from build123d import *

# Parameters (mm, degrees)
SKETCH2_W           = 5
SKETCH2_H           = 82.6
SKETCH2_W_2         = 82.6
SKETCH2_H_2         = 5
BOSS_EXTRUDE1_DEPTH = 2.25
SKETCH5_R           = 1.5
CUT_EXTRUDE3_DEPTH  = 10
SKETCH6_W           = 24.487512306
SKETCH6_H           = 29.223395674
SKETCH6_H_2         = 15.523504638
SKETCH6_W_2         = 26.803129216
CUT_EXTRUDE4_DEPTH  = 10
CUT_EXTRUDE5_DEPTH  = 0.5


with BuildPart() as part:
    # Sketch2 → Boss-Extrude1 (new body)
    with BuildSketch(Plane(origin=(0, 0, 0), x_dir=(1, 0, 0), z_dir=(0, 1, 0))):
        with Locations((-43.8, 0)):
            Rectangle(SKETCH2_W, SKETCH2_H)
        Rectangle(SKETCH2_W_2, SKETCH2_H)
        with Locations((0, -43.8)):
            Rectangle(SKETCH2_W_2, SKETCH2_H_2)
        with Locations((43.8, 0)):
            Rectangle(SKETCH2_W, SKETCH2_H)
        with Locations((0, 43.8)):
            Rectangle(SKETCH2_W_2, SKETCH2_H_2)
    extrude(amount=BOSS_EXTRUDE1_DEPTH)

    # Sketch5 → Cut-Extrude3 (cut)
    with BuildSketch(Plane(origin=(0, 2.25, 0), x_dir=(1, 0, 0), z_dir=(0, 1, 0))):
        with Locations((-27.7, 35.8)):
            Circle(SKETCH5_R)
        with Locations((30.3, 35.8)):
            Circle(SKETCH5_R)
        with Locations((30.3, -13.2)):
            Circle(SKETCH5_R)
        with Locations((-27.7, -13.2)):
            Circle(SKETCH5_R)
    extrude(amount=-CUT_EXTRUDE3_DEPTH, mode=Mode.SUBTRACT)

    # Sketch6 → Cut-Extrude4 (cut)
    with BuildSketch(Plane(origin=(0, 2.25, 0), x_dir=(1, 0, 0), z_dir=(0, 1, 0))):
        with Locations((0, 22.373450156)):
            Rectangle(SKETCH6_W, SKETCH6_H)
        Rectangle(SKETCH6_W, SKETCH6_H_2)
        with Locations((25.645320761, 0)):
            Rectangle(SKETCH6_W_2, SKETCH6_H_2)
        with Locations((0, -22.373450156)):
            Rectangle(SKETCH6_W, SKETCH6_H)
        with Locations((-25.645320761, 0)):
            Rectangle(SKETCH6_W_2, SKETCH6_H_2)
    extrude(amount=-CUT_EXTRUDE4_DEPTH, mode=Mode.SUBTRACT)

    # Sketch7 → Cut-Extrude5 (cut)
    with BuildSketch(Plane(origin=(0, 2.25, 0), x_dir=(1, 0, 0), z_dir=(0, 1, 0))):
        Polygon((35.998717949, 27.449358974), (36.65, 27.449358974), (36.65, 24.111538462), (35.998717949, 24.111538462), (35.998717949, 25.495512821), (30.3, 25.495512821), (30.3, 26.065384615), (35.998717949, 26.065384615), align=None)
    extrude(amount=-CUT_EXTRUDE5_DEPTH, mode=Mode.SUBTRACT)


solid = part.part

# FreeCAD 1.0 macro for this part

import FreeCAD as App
import Part
import Sketcher

V = App.Vector
Q = App.Units.Quantity

doc = App.newDocument("Part")
body = doc.addObject("PartDesign::Body", "Body")

# Sketch on XZ plane
sketch1 = doc.addObject("Sketcher::SketchObject", "Sketch")
body.addObject(sketch1)
sketch1.AttachmentSupport = (doc.XZ_Plane, [""])
sketch1.MapMode = "FlatFace"
sketch1.addGeometry([
    Part.LineSegment(V(-46.3, -41.3, 0), V(-46.3, 41.3, 0)),  # 0
    Part.LineSegment(V(-46.3, 41.3, 0), V(-41.3, 41.3, 0)),  # 1
    Part.LineSegment(V(-41.3, 41.3, 0), V(-41.3, 46.3, 0)),  # 2
    Part.LineSegment(V(-41.3, 46.3, 0), V(41.3, 46.3, 0)),  # 3
    Part.LineSegment(V(41.3, 46.3, 0), V(41.3, 41.3, 0)),  # 4
    Part.LineSegment(V(41.3, 41.3, 0), V(46.3, 41.3, 0)),  # 5
    Part.LineSegment(V(46.3, 41.3, 0), V(46.3, -41.3, 0)),  # 6
    Part.LineSegment(V(46.3, -41.3, 0), V(41.3, -41.3, 0)),  # 7
    Part.LineSegment(V(41.3, -41.3, 0), V(41.3, -46.3, 0)),  # 8
    Part.LineSegment(V(41.3, -46.3, 0), V(-41.3, -46.3, 0)),  # 9
    Part.LineSegment(V(-41.3, -46.3, 0), V(-41.3, -41.3, 0)),  # 10
    Part.LineSegment(V(-41.3, -41.3, 0), V(-46.3, -41.3, 0)),  # 11
], False)
sketch1.addConstraint([
    Sketcher.Constraint("Coincident", 0, 2, 1, 1),
    Sketcher.Constraint("Coincident", 1, 2, 2, 1),
    Sketcher.Constraint("Coincident", 2, 2, 3, 1),
    Sketcher.Constraint("Coincident", 3, 2, 4, 1),
    Sketcher.Constraint("Coincident", 4, 2, 5, 1),
    Sketcher.Constraint("Coincident", 5, 2, 6, 1),
    Sketcher.Constraint("Coincident", 6, 2, 7, 1),
    Sketcher.Constraint("Coincident", 7, 2, 8, 1),
    Sketcher.Constraint("Coincident", 8, 2, 9, 1),
    Sketcher.Constraint("Coincident", 9, 2, 10, 1),
    Sketcher.Constraint("Coincident", 10, 2, 11, 1),
    Sketcher.Constraint("Coincident", 11, 2, 0, 1),
    Sketcher.Constraint("Vertical", 0),
    Sketcher.Constraint("Horizontal", 1),
    Sketcher.Constraint("Vertical", 2),
    Sketcher.Constraint("Horizontal", 3),
    Sketcher.Constraint("Vertical", 4),
    Sketcher.Constraint("Horizontal", 5),
    Sketcher.Constraint("Vertical", 6),
    Sketcher.Constraint("Horizontal", 7),
    Sketcher.Constraint("Vertical", 8),
    Sketcher.Constraint("Horizontal", 9),
    Sketcher.Constraint("Vertical", 10),
    Sketcher.Constraint("Horizontal", 11),
    Sketcher.Constraint("Symmetric", 0, 2, 6, 2, -1, 1),
    Sketcher.Constraint("Symmetric", 2, 2, 8, 2, -1, 1),
    Sketcher.Constraint("Symmetric", 4, 2, 10, 2, -1, 1),
    Sketcher.Constraint("Symmetric", 1, 2, 4, 2, -2),
    Sketcher.Constraint("Equal", 9, 0),
    Sketcher.Constraint("Equal", 11, 2),
    Sketcher.Constraint("DistanceX", 1, 1, 1, 2, Q("5 mm")),
    Sketcher.Constraint("DistanceX", 3, 1, 3, 2, Q("82.6 mm")),
])
pad1 = doc.addObject("PartDesign::Pad", "Pad")
body.addObject(pad1)
pad1.Profile = sketch1
pad1.Length = 2.25
pad1.Reversed = True

# Sketch on XZ plane
sketch2 = doc.addObject("Sketcher::SketchObject", "Sketch001")
body.addObject(sketch2)
sketch2.AttachmentSupport = (doc.XZ_Plane, [""])
sketch2.MapMode = "FlatFace"
sketch2.AttachmentOffset = App.Placement(V(0, 0, -2.25), App.Rotation())
sketch2.addGeometry([
    Part.Circle(V(-27.7, -35.8, 0), V(0, 0, 1), 1.5),
    Part.Circle(V(30.3, -35.8, 0), V(0, 0, 1), 1.5),
    Part.Circle(V(30.3, 13.2, 0), V(0, 0, 1), 1.5),
    Part.Circle(V(-27.7, 13.2, 0), V(0, 0, 1), 1.5),
], False)
sketch2.addConstraint([
    Sketcher.Constraint("Equal", 0, 1),
    Sketcher.Constraint("Equal", 1, 2),
    Sketcher.Constraint("Equal", 2, 3),
    Sketcher.Constraint("Horizontal", 0, 3, 1, 3),
    Sketcher.Constraint("Horizontal", 2, 3, 3, 3),
    Sketcher.Constraint("Vertical", 1, 3, 2, 3),
    Sketcher.Constraint("Vertical", 0, 3, 3, 3),
    Sketcher.Constraint("Diameter", 0, Q("3 mm")),
    Sketcher.Constraint("DistanceX", 0, 3, 1, 3, Q("58 mm")),
    Sketcher.Constraint("DistanceY", 1, 3, 2, 3, Q("49 mm")),
    Sketcher.Constraint("DistanceX", 0, 3, -1, 1, Q("27.7 mm")),
    Sketcher.Constraint("DistanceY", 0, 3, -1, 1, Q("35.8 mm")),
])
pocket1 = doc.addObject("PartDesign::Pocket", "Pocket")
body.addObject(pocket1)
pocket1.Profile = sketch2
pocket1.Length = 10
pocket1.Reversed = True

# Sketch on XZ plane
sketch3 = doc.addObject("Sketcher::SketchObject", "Sketch002")
body.addObject(sketch3)
sketch3.AttachmentSupport = (doc.XZ_Plane, [""])
sketch3.MapMode = "FlatFace"
sketch3.AttachmentOffset = App.Placement(V(0, 0, -2.25), App.Rotation())
sketch3.addGeometry([
    Part.LineSegment(V(-12.243756, -36.985148, 0), V(-12.243756, -7.761752, 0)),  # 0
    Part.LineSegment(V(-12.243756, -7.761752, 0), V(-39.046885, -7.761752, 0)),  # 1
    Part.LineSegment(V(-39.046885, -7.761752, 0), V(-39.046885, 7.761752, 0)),  # 2
    Part.LineSegment(V(-39.046885, 7.761752, 0), V(-12.243756, 7.761752, 0)),  # 3
    Part.LineSegment(V(-12.243756, 7.761752, 0), V(-12.243756, 36.985148, 0)),  # 4
    Part.LineSegment(V(-12.243756, 36.985148, 0), V(12.243756, 36.985148, 0)),  # 5
    Part.LineSegment(V(12.243756, 36.985148, 0), V(12.243756, 7.761752, 0)),  # 6
    Part.LineSegment(V(12.243756, 7.761752, 0), V(39.046885, 7.761752, 0)),  # 7
    Part.LineSegment(V(39.046885, 7.761752, 0), V(39.046885, -7.761752, 0)),  # 8
    Part.LineSegment(V(39.046885, -7.761752, 0), V(12.243756, -7.761752, 0)),  # 9
    Part.LineSegment(V(12.243756, -7.761752, 0), V(12.243756, -36.985148, 0)),  # 10
    Part.LineSegment(V(12.243756, -36.985148, 0), V(-12.243756, -36.985148, 0)),  # 11
], False)
sketch3.addConstraint([
    Sketcher.Constraint("Coincident", 0, 2, 1, 1),
    Sketcher.Constraint("Coincident", 1, 2, 2, 1),
    Sketcher.Constraint("Coincident", 2, 2, 3, 1),
    Sketcher.Constraint("Coincident", 3, 2, 4, 1),
    Sketcher.Constraint("Coincident", 4, 2, 5, 1),
    Sketcher.Constraint("Coincident", 5, 2, 6, 1),
    Sketcher.Constraint("Coincident", 6, 2, 7, 1),
    Sketcher.Constraint("Coincident", 7, 2, 8, 1),
    Sketcher.Constraint("Coincident", 8, 2, 9, 1),
    Sketcher.Constraint("Coincident", 9, 2, 10, 1),
    Sketcher.Constraint("Coincident", 10, 2, 11, 1),
    Sketcher.Constraint("Coincident", 11, 2, 0, 1),
    Sketcher.Constraint("Vertical", 0),
    Sketcher.Constraint("Horizontal", 1),
    Sketcher.Constraint("Vertical", 2),
    Sketcher.Constraint("Horizontal", 3),
    Sketcher.Constraint("Vertical", 4),
    Sketcher.Constraint("Horizontal", 5),
    Sketcher.Constraint("Vertical", 6),
    Sketcher.Constraint("Horizontal", 7),
    Sketcher.Constraint("Vertical", 8),
    Sketcher.Constraint("Horizontal", 9),
    Sketcher.Constraint("Vertical", 10),
    Sketcher.Constraint("Horizontal", 11),
    Sketcher.Constraint("Symmetric", 0, 2, 6, 2, -1, 1),
    Sketcher.Constraint("Symmetric", 2, 2, 8, 2, -1, 1),
    Sketcher.Constraint("Symmetric", 4, 2, 10, 2, -1, 1),
    Sketcher.Constraint("Symmetric", 3, 2, 6, 2, -2),
    Sketcher.Constraint("DistanceX", 1, 2, 1, 1, Q("26.803129 mm")),
    Sketcher.Constraint("DistanceY", 0, 2, 4, 2, Q("44.7469 mm")),
    Sketcher.Constraint("DistanceX", 5, 1, 5, 2, Q("24.487512 mm")),
    Sketcher.Constraint("DistanceY", 0, 1, 0, 2, Q("29.223396 mm")),
])
pocket2 = doc.addObject("PartDesign::Pocket", "Pocket001")
body.addObject(pocket2)
pocket2.Profile = sketch3
pocket2.Length = 10
pocket2.Reversed = True

# Sketch on XZ plane
sketch4 = doc.addObject("Sketcher::SketchObject", "Sketch003")
body.addObject(sketch4)
sketch4.AttachmentSupport = (doc.XZ_Plane, [""])
sketch4.MapMode = "FlatFace"
sketch4.AttachmentOffset = App.Placement(V(0, 0, -2.25), App.Rotation())
sketch4.addGeometry([
    Part.LineSegment(V(36.65, -27.449359, 0), V(35.998718, -27.449359, 0)),  # 0
    Part.LineSegment(V(35.998718, -27.449359, 0), V(35.998718, -26.065385, 0)),  # 1
    Part.LineSegment(V(35.998718, -26.065385, 0), V(30.3, -26.065385, 0)),  # 2
    Part.LineSegment(V(30.3, -26.065385, 0), V(30.3, -25.495513, 0)),  # 3
    Part.LineSegment(V(30.3, -25.495513, 0), V(35.998718, -25.495513, 0)),  # 4
    Part.LineSegment(V(35.998718, -25.495513, 0), V(35.998718, -24.111538, 0)),  # 5
    Part.LineSegment(V(35.998718, -24.111538, 0), V(36.65, -24.111538, 0)),  # 6
    Part.LineSegment(V(36.65, -24.111538, 0), V(36.65, -27.449359, 0)),  # 7
], False)
sketch4.addConstraint([
    Sketcher.Constraint("Coincident", 0, 2, 1, 1),
    Sketcher.Constraint("Coincident", 1, 2, 2, 1),
    Sketcher.Constraint("Coincident", 2, 2, 3, 1),
    Sketcher.Constraint("Coincident", 3, 2, 4, 1),
    Sketcher.Constraint("Coincident", 4, 2, 5, 1),
    Sketcher.Constraint("Coincident", 5, 2, 6, 1),
    Sketcher.Constraint("Coincident", 6, 2, 7, 1),
    Sketcher.Constraint("Coincident", 7, 2, 0, 1),
    Sketcher.Constraint("Horizontal", 0),
    Sketcher.Constraint("Vertical", 1),
    Sketcher.Constraint("Horizontal", 2),
    Sketcher.Constraint("Vertical", 3),
    Sketcher.Constraint("Horizontal", 4),
    Sketcher.Constraint("Vertical", 5),
    Sketcher.Constraint("Horizontal", 6),
    Sketcher.Constraint("Vertical", 7),
    Sketcher.Constraint("Vertical", 1, 2, 4, 2),
    Sketcher.Constraint("Equal", 1, 5),
    Sketcher.Constraint("DistanceX", -1, 1, 2, 2, Q("30.3 mm")),
    Sketcher.Constraint("DistanceX", -1, 1, 6, 2, Q("36.65 mm")),
    Sketcher.Constraint("DistanceY", 3, 1, 3, 2, Q("0.569872 mm")),
    Sketcher.Constraint("DistanceY", 7, 2, 7, 1, Q("3.337821 mm")),
    Sketcher.Constraint("DistanceX", 0, 2, 0, 1, Q("0.651282 mm")),
    Sketcher.Constraint("DistanceY", 0, 2, -1, 1, Q("27.449359 mm")),
])
pocket3 = doc.addObject("PartDesign::Pocket", "Pocket002")
body.addObject(pocket3)
pocket3.Profile = sketch4
pocket3.Length = 0.5
pocket3.Reversed = True

doc.recompute()
